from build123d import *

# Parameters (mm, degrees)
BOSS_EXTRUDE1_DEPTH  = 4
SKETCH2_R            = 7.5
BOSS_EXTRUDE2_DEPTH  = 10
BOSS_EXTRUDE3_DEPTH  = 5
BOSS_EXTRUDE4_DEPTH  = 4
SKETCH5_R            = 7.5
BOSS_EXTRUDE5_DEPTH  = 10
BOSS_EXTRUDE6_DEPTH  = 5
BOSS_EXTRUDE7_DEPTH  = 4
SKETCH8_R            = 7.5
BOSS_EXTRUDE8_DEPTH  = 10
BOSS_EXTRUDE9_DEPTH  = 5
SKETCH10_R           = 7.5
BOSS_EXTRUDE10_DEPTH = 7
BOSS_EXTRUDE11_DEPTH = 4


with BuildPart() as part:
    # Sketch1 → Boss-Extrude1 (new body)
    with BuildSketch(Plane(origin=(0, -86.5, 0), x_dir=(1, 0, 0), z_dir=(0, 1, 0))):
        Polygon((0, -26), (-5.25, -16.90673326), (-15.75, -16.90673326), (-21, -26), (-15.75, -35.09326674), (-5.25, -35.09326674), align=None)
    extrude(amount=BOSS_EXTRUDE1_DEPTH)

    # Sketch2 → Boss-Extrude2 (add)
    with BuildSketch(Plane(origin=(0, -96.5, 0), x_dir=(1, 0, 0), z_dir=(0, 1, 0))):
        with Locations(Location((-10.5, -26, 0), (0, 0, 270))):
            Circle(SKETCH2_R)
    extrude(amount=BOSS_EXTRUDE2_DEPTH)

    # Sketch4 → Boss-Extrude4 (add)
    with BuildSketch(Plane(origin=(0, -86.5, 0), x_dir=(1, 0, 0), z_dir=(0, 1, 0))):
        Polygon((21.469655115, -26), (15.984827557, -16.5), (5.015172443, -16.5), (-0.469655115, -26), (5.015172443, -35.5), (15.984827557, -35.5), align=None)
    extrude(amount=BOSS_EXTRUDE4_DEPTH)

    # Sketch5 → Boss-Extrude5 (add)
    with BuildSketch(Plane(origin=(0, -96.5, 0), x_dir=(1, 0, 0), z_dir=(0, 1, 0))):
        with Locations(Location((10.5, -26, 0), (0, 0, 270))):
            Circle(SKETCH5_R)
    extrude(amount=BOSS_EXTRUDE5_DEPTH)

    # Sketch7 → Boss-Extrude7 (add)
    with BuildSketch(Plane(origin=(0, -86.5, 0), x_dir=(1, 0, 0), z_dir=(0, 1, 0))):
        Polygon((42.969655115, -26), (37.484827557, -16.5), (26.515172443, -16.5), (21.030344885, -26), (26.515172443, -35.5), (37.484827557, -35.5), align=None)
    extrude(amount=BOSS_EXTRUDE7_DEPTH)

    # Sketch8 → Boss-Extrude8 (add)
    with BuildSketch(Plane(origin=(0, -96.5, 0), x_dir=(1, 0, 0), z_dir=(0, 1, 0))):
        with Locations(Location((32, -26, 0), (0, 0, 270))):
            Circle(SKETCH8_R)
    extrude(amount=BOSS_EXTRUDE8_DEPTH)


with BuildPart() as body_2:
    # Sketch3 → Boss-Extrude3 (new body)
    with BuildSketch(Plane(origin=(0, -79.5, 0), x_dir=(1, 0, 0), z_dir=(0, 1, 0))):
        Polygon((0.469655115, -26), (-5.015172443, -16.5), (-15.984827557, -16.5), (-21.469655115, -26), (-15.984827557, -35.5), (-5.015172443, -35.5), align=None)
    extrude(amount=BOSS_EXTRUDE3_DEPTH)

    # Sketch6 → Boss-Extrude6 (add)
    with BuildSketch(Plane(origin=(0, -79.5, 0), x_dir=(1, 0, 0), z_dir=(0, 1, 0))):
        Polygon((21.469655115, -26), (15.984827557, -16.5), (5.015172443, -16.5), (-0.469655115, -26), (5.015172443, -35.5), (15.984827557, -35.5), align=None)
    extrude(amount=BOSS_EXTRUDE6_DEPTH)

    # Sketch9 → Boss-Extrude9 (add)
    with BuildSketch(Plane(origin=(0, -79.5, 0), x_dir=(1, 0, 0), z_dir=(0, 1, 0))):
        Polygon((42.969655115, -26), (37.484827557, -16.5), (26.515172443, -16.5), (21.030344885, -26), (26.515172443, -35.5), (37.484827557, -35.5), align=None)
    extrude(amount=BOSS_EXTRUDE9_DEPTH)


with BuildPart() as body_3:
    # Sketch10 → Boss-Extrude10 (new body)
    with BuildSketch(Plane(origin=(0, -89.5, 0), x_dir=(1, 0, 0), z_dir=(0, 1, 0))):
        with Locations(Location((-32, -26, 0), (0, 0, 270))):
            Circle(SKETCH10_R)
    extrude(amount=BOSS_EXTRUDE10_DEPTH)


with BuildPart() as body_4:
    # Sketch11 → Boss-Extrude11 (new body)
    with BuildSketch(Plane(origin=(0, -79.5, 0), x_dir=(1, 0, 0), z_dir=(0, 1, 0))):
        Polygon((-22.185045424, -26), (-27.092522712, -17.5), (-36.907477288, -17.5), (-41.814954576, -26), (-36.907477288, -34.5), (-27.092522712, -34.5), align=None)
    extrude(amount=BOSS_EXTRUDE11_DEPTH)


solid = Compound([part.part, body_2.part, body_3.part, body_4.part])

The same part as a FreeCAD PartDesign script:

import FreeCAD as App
import Part
import Sketcher
Q = App.Units.Quantity

doc = App.newDocument("Part")
params = doc.addObject("Spreadsheet::Sheet", "Params")
for row, (alias, value) in enumerate([
    ("sketch1_width", "10.5 mm"),
    ("pad1_length", "4 mm"),
    ("sketch2_diameter", "15 mm"),
    ("pad2_length", "10 mm"),
    ("pad3_length", "4 mm"),
    ("sketch4_diameter", "15 mm"),
    ("pad4_length", "10 mm"),
    ("pad5_length", "4 mm"),
    ("sketch6_diameter", "15 mm"),
    ("pad6_length", "10 mm"),
    ("pad7_length", "5 mm"),
    ("pad8_length", "5 mm"),
    ("pad9_length", "5 mm"),
    ("sketch10_diameter", "15 mm"),
    ("pad10_length", "7 mm"),
    ("pad11_length", "4 mm"),
], start=1):
    params.set(f"A{row}", alias)
    params.set(f"B{row}", "=" + value)
    params.setAlias(f"B{row}", alias)

body = doc.addObject("PartDesign::Body", "Body")

# Sketch on XZ plane
sketch1 = body.newObject("Sketcher::SketchObject", "Sketch")
sketch1.AttachmentSupport = (doc.getObject("XZ_Plane"), [""])
sketch1.MapMode = "FlatFace"
sketch1.AttachmentOffset = App.Placement(App.Vector(0, 0, 86.5), App.Rotation())
sketch1.addGeometry([
    Part.LineSegment(App.Vector(0, 26, 0), App.Vector(-5.25, 16.906733, 0)),  # 0
    Part.LineSegment(App.Vector(-5.25, 16.906733, 0), App.Vector(-15.75, 16.906733, 0)),  # 1
    Part.LineSegment(App.Vector(-15.75, 16.906733, 0), App.Vector(-21, 26, 0)),  # 2
    Part.LineSegment(App.Vector(-21, 26, 0), App.Vector(-15.75, 35.093267, 0)),  # 3
    Part.LineSegment(App.Vector(-15.75, 35.093267, 0), App.Vector(-5.25, 35.093267, 0)),  # 4
    Part.LineSegment(App.Vector(-5.25, 35.093267, 0), App.Vector(0, 26, 0)),  # 5
], False)
sketch1.addConstraint([
    Sketcher.Constraint("Coincident", 0, 2, 1, 1),
    Sketcher.Constraint("Coincident", 1, 2, 2, 1),
    Sketcher.Constraint("Coincident", 2, 2, 3, 1),
    Sketcher.Constraint("Coincident", 3, 2, 4, 1),
    Sketcher.Constraint("Coincident", 4, 2, 5, 1),
    Sketcher.Constraint("Coincident", 5, 2, 0, 1),
    Sketcher.Constraint("Horizontal", 1),
    Sketcher.Constraint("Horizontal", 4),
    Sketcher.Constraint("PointOnObject", 5, 2, -2),
    Sketcher.Constraint("Parallel", 0, 3),
    Sketcher.Constraint("Parallel", 2, 5),
    Sketcher.Constraint("Horizontal", 2, 2, 5, 2),
    Sketcher.Constraint("Vertical", 1, 2, 3, 2),
    Sketcher.Constraint("Vertical", 0, 2, 4, 2),
    Sketcher.Constraint("Angle", 0, Q("-120 deg")),
    Sketcher.Constraint("DistanceX", 1, 2, 1, 1, Q("10.5 mm")),
    Sketcher.Constraint("DistanceX", 2, 2, -1, 1, Q("21 mm")),
    Sketcher.Constraint("DistanceY", -1, 1, 2, 2, Q("26 mm")),
])
sketch1.setExpression("Constraints[15]", "Params.sketch1_width")
pad1 = body.newObject("PartDesign::Pad", "Pad")
pad1.Profile = sketch1
pad1.setExpression("Length", "Params.pad1_length")
pad1.Reversed = True

# Sketch on XZ plane
sketch2 = body.newObject("Sketcher::SketchObject", "Sketch001")
sketch2.AttachmentSupport = (doc.getObject("XZ_Plane"), [""])
sketch2.MapMode = "FlatFace"
sketch2.AttachmentOffset = App.Placement(App.Vector(0, 0, 96.5), App.Rotation())
sketch2.addGeometry(Part.Circle(App.Vector(-10.5, 26, 0), App.Vector(0, 0, 1), 7.5), False)
sketch2.addConstraint([
    Sketcher.Constraint("Diameter", 0, Q("15 mm")),
    Sketcher.Constraint("DistanceY", -1, 1, 0, 3, Q("26 mm")),
    Sketcher.Constraint("DistanceX", 0, 3, -1, 1, Q("10.5 mm")),
])
sketch2.setExpression("Constraints[0]", "Params.sketch2_diameter")
pad2 = body.newObject("PartDesign::Pad", "Pad001")
pad2.Profile = sketch2
pad2.setExpression("Length", "Params.pad2_length")
pad2.Reversed = True

# Sketch on XZ plane
sketch3 = body.newObject("Sketcher::SketchObject", "Sketch002")
sketch3.AttachmentSupport = (doc.getObject("XZ_Plane"), [""])
sketch3.MapMode = "FlatFace"
sketch3.AttachmentOffset = App.Placement(App.Vector(0, 0, 86.5), App.Rotation())
sketch3.addGeometry([
    Part.LineSegment(App.Vector(21.469655, 26, 0), App.Vector(15.984828, 16.5, 0)),  # 0
    Part.LineSegment(App.Vector(15.984828, 16.5, 0), App.Vector(5.015172, 16.5, 0)),  # 1
    Part.LineSegment(App.Vector(5.015172, 16.5, 0), App.Vector(-0.469655, 26, 0)),  # 2
    Part.LineSegment(App.Vector(-0.469655, 26, 0), App.Vector(5.015172, 35.5, 0)),  # 3
    Part.LineSegment(App.Vector(5.015172, 35.5, 0), App.Vector(15.984828, 35.5, 0)),  # 4
    Part.LineSegment(App.Vector(15.984828, 35.5, 0), App.Vector(21.469655, 26, 0)),  # 5
], False)
sketch3.addConstraint([
    Sketcher.Constraint("Coincident", 0, 2, 1, 1),
    Sketcher.Constraint("Coincident", 1, 2, 2, 1),
    Sketcher.Constraint("Coincident", 2, 2, 3, 1),
    Sketcher.Constraint("Coincident", 3, 2, 4, 1),
    Sketcher.Constraint("Coincident", 4, 2, 5, 1),
    Sketcher.Constraint("Coincident", 5, 2, 0, 1),
    Sketcher.Constraint("Horizontal", 1),
    Sketcher.Constraint("Horizontal", 4),
    Sketcher.Constraint("Parallel", 0, 3),
    Sketcher.Constraint("Parallel", 2, 5),
    Sketcher.Constraint("Horizontal", 2, 2, 5, 2),
    Sketcher.Constraint("Vertical", 1, 2, 3, 2),
    Sketcher.Constraint("Vertical", 0, 2, 4, 2),
    Sketcher.Constraint("Angle", 0, Q("-120 deg")),
    Sketcher.Constraint("DistanceY", -1, 1, 2, 2, Q("26 mm")),
    Sketcher.Constraint("DistanceY", 1, 2, 3, 2, Q("19 mm")),
    Sketcher.Constraint("DistanceX", 1, 2, 1, 1, Q("10.969655 mm")),
    Sketcher.Constraint("DistanceX", -1, 1, 0, 2, Q("15.984828 mm")),
])
pad3 = body.newObject("PartDesign::Pad", "Pad002")
pad3.Profile = sketch3
pad3.setExpression("Length", "Params.pad3_length")
pad3.Reversed = True

# Sketch on XZ plane
sketch4 = body.newObject("Sketcher::SketchObject", "Sketch003")
sketch4.AttachmentSupport = (doc.getObject("XZ_Plane"), [""])
sketch4.MapMode = "FlatFace"
sketch4.AttachmentOffset = App.Placement(App.Vector(0, 0, 96.5), App.Rotation())
sketch4.addGeometry(Part.Circle(App.Vector(10.5, 26, 0), App.Vector(0, 0, 1), 7.5), False)
sketch4.addConstraint([
    Sketcher.Constraint("Diameter", 0, Q("15 mm")),
    Sketcher.Constraint("DistanceY", -1, 1, 0, 3, Q("26 mm")),
    Sketcher.Constraint("DistanceX", -1, 1, 0, 3, Q("10.5 mm")),
])
sketch4.setExpression("Constraints[0]", "Params.sketch4_diameter")
pad4 = body.newObject("PartDesign::Pad", "Pad003")
pad4.Profile = sketch4
pad4.setExpression("Length", "Params.pad4_length")
pad4.Reversed = True

# Sketch on XZ plane
sketch5 = body.newObject("Sketcher::SketchObject", "Sketch004")
sketch5.AttachmentSupport = (doc.getObject("XZ_Plane"), [""])
sketch5.MapMode = "FlatFace"
sketch5.AttachmentOffset = App.Placement(App.Vector(0, 0, 86.5), App.Rotation())
sketch5.addGeometry([
    Part.LineSegment(App.Vector(42.969655, 26, 0), App.Vector(37.484828, 16.5, 0)),  # 0
    Part.LineSegment(App.Vector(37.484828, 16.5, 0), App.Vector(26.515172, 16.5, 0)),  # 1
    Part.LineSegment(App.Vector(26.515172, 16.5, 0), App.Vector(21.030345, 26, 0)),  # 2
    Part.LineSegment(App.Vector(21.030345, 26, 0), App.Vector(26.515172, 35.5, 0)),  # 3
    Part.LineSegment(App.Vector(26.515172, 35.5, 0), App.Vector(37.484828, 35.5, 0)),  # 4
    Part.LineSegment(App.Vector(37.484828, 35.5, 0), App.Vector(42.969655, 26, 0)),  # 5
], False)
sketch5.addConstraint([
    Sketcher.Constraint("Coincident", 0, 2, 1, 1),
    Sketcher.Constraint("Coincident", 1, 2, 2, 1),
    Sketcher.Constraint("Coincident", 2, 2, 3, 1),
    Sketcher.Constraint("Coincident", 3, 2, 4, 1),
    Sketcher.Constraint("Coincident", 4, 2, 5, 1),
    Sketcher.Constraint("Coincident", 5, 2, 0, 1),
    Sketcher.Constraint("Horizontal", 1),
    Sketcher.Constraint("Horizontal", 4),
    Sketcher.Constraint("Parallel", 0, 3),
    Sketcher.Constraint("Parallel", 2, 5),
    Sketcher.Constraint("Horizontal", 2, 2, 5, 2),
    Sketcher.Constraint("Vertical", 1, 2, 3, 2),
    Sketcher.Constraint("Vertical", 0, 2, 4, 2),
    Sketcher.Constraint("Angle", 0, Q("-120 deg")),
    Sketcher.Constraint("DistanceY", -1, 1, 2, 2, Q("26 mm")),
    Sketcher.Constraint("DistanceY", 1, 2, 3, 2, Q("19 mm")),
    Sketcher.Constraint("DistanceX", 1, 2, 1, 1, Q("10.969655 mm")),
    Sketcher.Constraint("DistanceX", -1, 1, 0, 2, Q("37.484828 mm")),
])
pad5 = body.newObject("PartDesign::Pad", "Pad004")
pad5.Profile = sketch5
pad5.setExpression("Length", "Params.pad5_length")
pad5.Reversed = True

# Sketch on XZ plane
sketch6 = body.newObject("Sketcher::SketchObject", "Sketch005")
sketch6.AttachmentSupport = (doc.getObject("XZ_Plane"), [""])
sketch6.MapMode = "FlatFace"
sketch6.AttachmentOffset = App.Placement(App.Vector(0, 0, 96.5), App.Rotation())
sketch6.addGeometry(Part.Circle(App.Vector(32, 26, 0), App.Vector(0, 0, 1), 7.5), False)
sketch6.addConstraint([
    Sketcher.Constraint("Diameter", 0, Q("15 mm")),
    Sketcher.Constraint("DistanceX", -1, 1, 0, 3, Q("32 mm")),
    Sketcher.Constraint("DistanceY", -1, 1, 0, 3, Q("26 mm")),
])
sketch6.setExpression("Constraints[0]", "Params.sketch6_diameter")
pad6 = body.newObject("PartDesign::Pad", "Pad005")
pad6.Profile = sketch6
pad6.setExpression("Length", "Params.pad6_length")
pad6.Reversed = True
body2 = doc.addObject("PartDesign::Body", "Body001")

# Sketch on XZ plane
sketch7 = body2.newObject("Sketcher::SketchObject", "Sketch006")
sketch7.AttachmentSupport = (doc.getObject("XZ_Plane001"), [""])
sketch7.MapMode = "FlatFace"
sketch7.AttachmentOffset = App.Placement(App.Vector(0, 0, 79.5), App.Rotation())
sketch7.addGeometry([
    Part.LineSegment(App.Vector(0.469655, 26, 0), App.Vector(-5.015172, 16.5, 0)),  # 0
    Part.LineSegment(App.Vector(-5.015172, 16.5, 0), App.Vector(-15.984828, 16.5, 0)),  # 1
    Part.LineSegment(App.Vector(-15.984828, 16.5, 0), App.Vector(-21.469655, 26, 0)),  # 2
    Part.LineSegment(App.Vector(-21.469655, 26, 0), App.Vector(-15.984828, 35.5, 0)),  # 3
    Part.LineSegment(App.Vector(-15.984828, 35.5, 0), App.Vector(-5.015172, 35.5, 0)),  # 4
    Part.LineSegment(App.Vector(-5.015172, 35.5, 0), App.Vector(0.469655, 26, 0)),  # 5
], False)
sketch7.addConstraint([
    Sketcher.Constraint("Coincident", 0, 2, 1, 1),
    Sketcher.Constraint("Coincident", 1, 2, 2, 1),
    Sketcher.Constraint("Coincident", 2, 2, 3, 1),
    Sketcher.Constraint("Coincident", 3, 2, 4, 1),
    Sketcher.Constraint("Coincident", 4, 2, 5, 1),
    Sketcher.Constraint("Coincident", 5, 2, 0, 1),
    Sketcher.Constraint("Horizontal", 1),
    Sketcher.Constraint("Horizontal", 4),
    Sketcher.Constraint("Parallel", 0, 3),
    Sketcher.Constraint("Parallel", 2, 5),
    Sketcher.Constraint("Horizontal", 2, 2, 5, 2),
    Sketcher.Constraint("Vertical", 1, 2, 3, 2),
    Sketcher.Constraint("Vertical", 0, 2, 4, 2),
    Sketcher.Constraint("Angle", 0, Q("-120 deg")),
    Sketcher.Constraint("DistanceY", -1, 1, 2, 2, Q("26 mm")),
    Sketcher.Constraint("DistanceY", 1, 2, 3, 2, Q("19 mm")),
    Sketcher.Constraint("DistanceX", 1, 2, 1, 1, Q("10.969655 mm")),
    Sketcher.Constraint("DistanceX", 0, 2, -1, 1, Q("5.015172 mm")),
])
pad7 = body2.newObject("PartDesign::Pad", "Pad006")
pad7.Profile = sketch7
pad7.setExpression("Length", "Params.pad7_length")
pad7.Reversed = True

# Sketch on XZ plane
sketch8 = body2.newObject("Sketcher::SketchObject", "Sketch007")
sketch8.AttachmentSupport = (doc.getObject("XZ_Plane001"), [""])
sketch8.MapMode = "FlatFace"
sketch8.AttachmentOffset = App.Placement(App.Vector(0, 0, 79.5), App.Rotation())
sketch8.addGeometry([
    Part.LineSegment(App.Vector(21.469655, 26, 0), App.Vector(15.984828, 16.5, 0)),  # 0
    Part.LineSegment(App.Vector(15.984828, 16.5, 0), App.Vector(5.015172, 16.5, 0)),  # 1
    Part.LineSegment(App.Vector(5.015172, 16.5, 0), App.Vector(-0.469655, 26, 0)),  # 2
    Part.LineSegment(App.Vector(-0.469655, 26, 0), App.Vector(5.015172, 35.5, 0)),  # 3
    Part.LineSegment(App.Vector(5.015172, 35.5, 0), App.Vector(15.984828, 35.5, 0)),  # 4
    Part.LineSegment(App.Vector(15.984828, 35.5, 0), App.Vector(21.469655, 26, 0)),  # 5
], False)
sketch8.addConstraint([
    Sketcher.Constraint("Coincident", 0, 2, 1, 1),
    Sketcher.Constraint("Coincident", 1, 2, 2, 1),
    Sketcher.Constraint("Coincident", 2, 2, 3, 1),
    Sketcher.Constraint("Coincident", 3, 2, 4, 1),
    Sketcher.Constraint("Coincident", 4, 2, 5, 1),
    Sketcher.Constraint("Coincident", 5, 2, 0, 1),
    Sketcher.Constraint("Horizontal", 1),
    Sketcher.Constraint("Horizontal", 4),
    Sketcher.Constraint("Parallel", 0, 3),
    Sketcher.Constraint("Parallel", 2, 5),
    Sketcher.Constraint("Horizontal", 2, 2, 5, 2),
    Sketcher.Constraint("Vertical", 1, 2, 3, 2),
    Sketcher.Constraint("Vertical", 0, 2, 4, 2),
    Sketcher.Constraint("Angle", 0, Q("-120 deg")),
    Sketcher.Constraint("DistanceY", -1, 1, 2, 2, Q("26 mm")),
    Sketcher.Constraint("DistanceY", 1, 2, 3, 2, Q("19 mm")),
    Sketcher.Constraint("DistanceX", 1, 2, 1, 1, Q("10.969655 mm")),
    Sketcher.Constraint("DistanceX", -1, 1, 0, 2, Q("15.984828 mm")),
])
pad8 = body2.newObject("PartDesign::Pad", "Pad007")
pad8.Profile = sketch8
pad8.setExpression("Length", "Params.pad8_length")
pad8.Reversed = True

# Sketch on XZ plane
sketch9 = body2.newObject("Sketcher::SketchObject", "Sketch008")
sketch9.AttachmentSupport = (doc.getObject("XZ_Plane001"), [""])
sketch9.MapMode = "FlatFace"
sketch9.AttachmentOffset = App.Placement(App.Vector(0, 0, 79.5), App.Rotation())
sketch9.addGeometry([
    Part.LineSegment(App.Vector(42.969655, 26, 0), App.Vector(37.484828, 16.5, 0)),  # 0
    Part.LineSegment(App.Vector(37.484828, 16.5, 0), App.Vector(26.515172, 16.5, 0)),  # 1
    Part.LineSegment(App.Vector(26.515172, 16.5, 0), App.Vector(21.030345, 26, 0)),  # 2
    Part.LineSegment(App.Vector(21.030345, 26, 0), App.Vector(26.515172, 35.5, 0)),  # 3
    Part.LineSegment(App.Vector(26.515172, 35.5, 0), App.Vector(37.484828, 35.5, 0)),  # 4
    Part.LineSegment(App.Vector(37.484828, 35.5, 0), App.Vector(42.969655, 26, 0)),  # 5
], False)
sketch9.addConstraint([
    Sketcher.Constraint("Coincident", 0, 2, 1, 1),
    Sketcher.Constraint("Coincident", 1, 2, 2, 1),
    Sketcher.Constraint("Coincident", 2, 2, 3, 1),
    Sketcher.Constraint("Coincident", 3, 2, 4, 1),
    Sketcher.Constraint("Coincident", 4, 2, 5, 1),
    Sketcher.Constraint("Coincident", 5, 2, 0, 1),
    Sketcher.Constraint("Horizontal", 1),
    Sketcher.Constraint("Horizontal", 4),
    Sketcher.Constraint("Parallel", 0, 3),
    Sketcher.Constraint("Parallel", 2, 5),
    Sketcher.Constraint("Horizontal", 2, 2, 5, 2),
    Sketcher.Constraint("Vertical", 1, 2, 3, 2),
    Sketcher.Constraint("Vertical", 0, 2, 4, 2),
    Sketcher.Constraint("Angle", 0, Q("-120 deg")),
    Sketcher.Constraint("DistanceY", -1, 1, 2, 2, Q("26 mm")),
    Sketcher.Constraint("DistanceY", 1, 2, 3, 2, Q("19 mm")),
    Sketcher.Constraint("DistanceX", 1, 2, 1, 1, Q("10.969655 mm")),
    Sketcher.Constraint("DistanceX", -1, 1, 0, 2, Q("37.484828 mm")),
])
pad9 = body2.newObject("PartDesign::Pad", "Pad008")
pad9.Profile = sketch9
pad9.setExpression("Length", "Params.pad9_length")
pad9.Reversed = True
body3 = doc.addObject("PartDesign::Body", "Body002")

# Sketch on XZ plane
sketch10 = body3.newObject("Sketcher::SketchObject", "Sketch009")
sketch10.AttachmentSupport = (doc.getObject("XZ_Plane002"), [""])
sketch10.MapMode = "FlatFace"
sketch10.AttachmentOffset = App.Placement(App.Vector(0, 0, 89.5), App.Rotation())
sketch10.addGeometry(Part.Circle(App.Vector(-32, 26, 0), App.Vector(0, 0, 1), 7.5), False)
sketch10.addConstraint([
    Sketcher.Constraint("Diameter", 0, Q("15 mm")),
    Sketcher.Constraint("DistanceX", 0, 3, -1, 1, Q("32 mm")),
    Sketcher.Constraint("DistanceY", -1, 1, 0, 3, Q("26 mm")),
])
sketch10.setExpression("Constraints[0]", "Params.sketch10_diameter")
pad10 = body3.newObject("PartDesign::Pad", "Pad009")
pad10.Profile = sketch10
pad10.setExpression("Length", "Params.pad10_length")
pad10.Reversed = True
body4 = doc.addObject("PartDesign::Body", "Body003")

# Sketch on XZ plane
sketch11 = body4.newObject("Sketcher::SketchObject", "Sketch010")
sketch11.AttachmentSupport = (doc.getObject("XZ_Plane003"), [""])
sketch11.MapMode = "FlatFace"
sketch11.AttachmentOffset = App.Placement(App.Vector(0, 0, 79.5), App.Rotation())
sketch11.addGeometry([
    Part.LineSegment(App.Vector(-22.185045, 26, 0), App.Vector(-27.092523, 17.5, 0)),  # 0
    Part.LineSegment(App.Vector(-27.092523, 17.5, 0), App.Vector(-36.907477, 17.5, 0)),  # 1
    Part.LineSegment(App.Vector(-36.907477, 17.5, 0), App.Vector(-41.814955, 26, 0)),  # 2
    Part.LineSegment(App.Vector(-41.814955, 26, 0), App.Vector(-36.907477, 34.5, 0)),  # 3
    Part.LineSegment(App.Vector(-36.907477, 34.5, 0), App.Vector(-27.092523, 34.5, 0)),  # 4
    Part.LineSegment(App.Vector(-27.092523, 34.5, 0), App.Vector(-22.185045, 26, 0)),  # 5
], False)
sketch11.addConstraint([
    Sketcher.Constraint("Coincident", 0, 2, 1, 1),
    Sketcher.Constraint("Coincident", 1, 2, 2, 1),
    Sketcher.Constraint("Coincident", 2, 2, 3, 1),
    Sketcher.Constraint("Coincident", 3, 2, 4, 1),
    Sketcher.Constraint("Coincident", 4, 2, 5, 1),
    Sketcher.Constraint("Coincident", 5, 2, 0, 1),
    Sketcher.Constraint("Horizontal", 1),
    Sketcher.Constraint("Horizontal", 4),
    Sketcher.Constraint("Parallel", 0, 3),
    Sketcher.Constraint("Parallel", 2, 5),
    Sketcher.Constraint("Horizontal", 2, 2, 5, 2),
    Sketcher.Constraint("Vertical", 1, 2, 3, 2),
    Sketcher.Constraint("Vertical", 0, 2, 4, 2),
    Sketcher.Constraint("Angle", 0, Q("-120 deg")),
    Sketcher.Constraint("DistanceY", -1, 1, 2, 2, Q("26 mm")),
    Sketcher.Constraint("DistanceY", 1, 2, 3, 2, Q("17 mm")),
    Sketcher.Constraint("DistanceX", 1, 2, 1, 1, Q("9.814955 mm")),
    Sketcher.Constraint("DistanceX", 0, 2, -1, 1, Q("27.092523 mm")),
])
pad11 = body4.newObject("PartDesign::Pad", "Pad010")
pad11.Profile = sketch11
pad11.setExpression("Length", "Params.pad11_length")
pad11.Reversed = True

doc.recompute()
